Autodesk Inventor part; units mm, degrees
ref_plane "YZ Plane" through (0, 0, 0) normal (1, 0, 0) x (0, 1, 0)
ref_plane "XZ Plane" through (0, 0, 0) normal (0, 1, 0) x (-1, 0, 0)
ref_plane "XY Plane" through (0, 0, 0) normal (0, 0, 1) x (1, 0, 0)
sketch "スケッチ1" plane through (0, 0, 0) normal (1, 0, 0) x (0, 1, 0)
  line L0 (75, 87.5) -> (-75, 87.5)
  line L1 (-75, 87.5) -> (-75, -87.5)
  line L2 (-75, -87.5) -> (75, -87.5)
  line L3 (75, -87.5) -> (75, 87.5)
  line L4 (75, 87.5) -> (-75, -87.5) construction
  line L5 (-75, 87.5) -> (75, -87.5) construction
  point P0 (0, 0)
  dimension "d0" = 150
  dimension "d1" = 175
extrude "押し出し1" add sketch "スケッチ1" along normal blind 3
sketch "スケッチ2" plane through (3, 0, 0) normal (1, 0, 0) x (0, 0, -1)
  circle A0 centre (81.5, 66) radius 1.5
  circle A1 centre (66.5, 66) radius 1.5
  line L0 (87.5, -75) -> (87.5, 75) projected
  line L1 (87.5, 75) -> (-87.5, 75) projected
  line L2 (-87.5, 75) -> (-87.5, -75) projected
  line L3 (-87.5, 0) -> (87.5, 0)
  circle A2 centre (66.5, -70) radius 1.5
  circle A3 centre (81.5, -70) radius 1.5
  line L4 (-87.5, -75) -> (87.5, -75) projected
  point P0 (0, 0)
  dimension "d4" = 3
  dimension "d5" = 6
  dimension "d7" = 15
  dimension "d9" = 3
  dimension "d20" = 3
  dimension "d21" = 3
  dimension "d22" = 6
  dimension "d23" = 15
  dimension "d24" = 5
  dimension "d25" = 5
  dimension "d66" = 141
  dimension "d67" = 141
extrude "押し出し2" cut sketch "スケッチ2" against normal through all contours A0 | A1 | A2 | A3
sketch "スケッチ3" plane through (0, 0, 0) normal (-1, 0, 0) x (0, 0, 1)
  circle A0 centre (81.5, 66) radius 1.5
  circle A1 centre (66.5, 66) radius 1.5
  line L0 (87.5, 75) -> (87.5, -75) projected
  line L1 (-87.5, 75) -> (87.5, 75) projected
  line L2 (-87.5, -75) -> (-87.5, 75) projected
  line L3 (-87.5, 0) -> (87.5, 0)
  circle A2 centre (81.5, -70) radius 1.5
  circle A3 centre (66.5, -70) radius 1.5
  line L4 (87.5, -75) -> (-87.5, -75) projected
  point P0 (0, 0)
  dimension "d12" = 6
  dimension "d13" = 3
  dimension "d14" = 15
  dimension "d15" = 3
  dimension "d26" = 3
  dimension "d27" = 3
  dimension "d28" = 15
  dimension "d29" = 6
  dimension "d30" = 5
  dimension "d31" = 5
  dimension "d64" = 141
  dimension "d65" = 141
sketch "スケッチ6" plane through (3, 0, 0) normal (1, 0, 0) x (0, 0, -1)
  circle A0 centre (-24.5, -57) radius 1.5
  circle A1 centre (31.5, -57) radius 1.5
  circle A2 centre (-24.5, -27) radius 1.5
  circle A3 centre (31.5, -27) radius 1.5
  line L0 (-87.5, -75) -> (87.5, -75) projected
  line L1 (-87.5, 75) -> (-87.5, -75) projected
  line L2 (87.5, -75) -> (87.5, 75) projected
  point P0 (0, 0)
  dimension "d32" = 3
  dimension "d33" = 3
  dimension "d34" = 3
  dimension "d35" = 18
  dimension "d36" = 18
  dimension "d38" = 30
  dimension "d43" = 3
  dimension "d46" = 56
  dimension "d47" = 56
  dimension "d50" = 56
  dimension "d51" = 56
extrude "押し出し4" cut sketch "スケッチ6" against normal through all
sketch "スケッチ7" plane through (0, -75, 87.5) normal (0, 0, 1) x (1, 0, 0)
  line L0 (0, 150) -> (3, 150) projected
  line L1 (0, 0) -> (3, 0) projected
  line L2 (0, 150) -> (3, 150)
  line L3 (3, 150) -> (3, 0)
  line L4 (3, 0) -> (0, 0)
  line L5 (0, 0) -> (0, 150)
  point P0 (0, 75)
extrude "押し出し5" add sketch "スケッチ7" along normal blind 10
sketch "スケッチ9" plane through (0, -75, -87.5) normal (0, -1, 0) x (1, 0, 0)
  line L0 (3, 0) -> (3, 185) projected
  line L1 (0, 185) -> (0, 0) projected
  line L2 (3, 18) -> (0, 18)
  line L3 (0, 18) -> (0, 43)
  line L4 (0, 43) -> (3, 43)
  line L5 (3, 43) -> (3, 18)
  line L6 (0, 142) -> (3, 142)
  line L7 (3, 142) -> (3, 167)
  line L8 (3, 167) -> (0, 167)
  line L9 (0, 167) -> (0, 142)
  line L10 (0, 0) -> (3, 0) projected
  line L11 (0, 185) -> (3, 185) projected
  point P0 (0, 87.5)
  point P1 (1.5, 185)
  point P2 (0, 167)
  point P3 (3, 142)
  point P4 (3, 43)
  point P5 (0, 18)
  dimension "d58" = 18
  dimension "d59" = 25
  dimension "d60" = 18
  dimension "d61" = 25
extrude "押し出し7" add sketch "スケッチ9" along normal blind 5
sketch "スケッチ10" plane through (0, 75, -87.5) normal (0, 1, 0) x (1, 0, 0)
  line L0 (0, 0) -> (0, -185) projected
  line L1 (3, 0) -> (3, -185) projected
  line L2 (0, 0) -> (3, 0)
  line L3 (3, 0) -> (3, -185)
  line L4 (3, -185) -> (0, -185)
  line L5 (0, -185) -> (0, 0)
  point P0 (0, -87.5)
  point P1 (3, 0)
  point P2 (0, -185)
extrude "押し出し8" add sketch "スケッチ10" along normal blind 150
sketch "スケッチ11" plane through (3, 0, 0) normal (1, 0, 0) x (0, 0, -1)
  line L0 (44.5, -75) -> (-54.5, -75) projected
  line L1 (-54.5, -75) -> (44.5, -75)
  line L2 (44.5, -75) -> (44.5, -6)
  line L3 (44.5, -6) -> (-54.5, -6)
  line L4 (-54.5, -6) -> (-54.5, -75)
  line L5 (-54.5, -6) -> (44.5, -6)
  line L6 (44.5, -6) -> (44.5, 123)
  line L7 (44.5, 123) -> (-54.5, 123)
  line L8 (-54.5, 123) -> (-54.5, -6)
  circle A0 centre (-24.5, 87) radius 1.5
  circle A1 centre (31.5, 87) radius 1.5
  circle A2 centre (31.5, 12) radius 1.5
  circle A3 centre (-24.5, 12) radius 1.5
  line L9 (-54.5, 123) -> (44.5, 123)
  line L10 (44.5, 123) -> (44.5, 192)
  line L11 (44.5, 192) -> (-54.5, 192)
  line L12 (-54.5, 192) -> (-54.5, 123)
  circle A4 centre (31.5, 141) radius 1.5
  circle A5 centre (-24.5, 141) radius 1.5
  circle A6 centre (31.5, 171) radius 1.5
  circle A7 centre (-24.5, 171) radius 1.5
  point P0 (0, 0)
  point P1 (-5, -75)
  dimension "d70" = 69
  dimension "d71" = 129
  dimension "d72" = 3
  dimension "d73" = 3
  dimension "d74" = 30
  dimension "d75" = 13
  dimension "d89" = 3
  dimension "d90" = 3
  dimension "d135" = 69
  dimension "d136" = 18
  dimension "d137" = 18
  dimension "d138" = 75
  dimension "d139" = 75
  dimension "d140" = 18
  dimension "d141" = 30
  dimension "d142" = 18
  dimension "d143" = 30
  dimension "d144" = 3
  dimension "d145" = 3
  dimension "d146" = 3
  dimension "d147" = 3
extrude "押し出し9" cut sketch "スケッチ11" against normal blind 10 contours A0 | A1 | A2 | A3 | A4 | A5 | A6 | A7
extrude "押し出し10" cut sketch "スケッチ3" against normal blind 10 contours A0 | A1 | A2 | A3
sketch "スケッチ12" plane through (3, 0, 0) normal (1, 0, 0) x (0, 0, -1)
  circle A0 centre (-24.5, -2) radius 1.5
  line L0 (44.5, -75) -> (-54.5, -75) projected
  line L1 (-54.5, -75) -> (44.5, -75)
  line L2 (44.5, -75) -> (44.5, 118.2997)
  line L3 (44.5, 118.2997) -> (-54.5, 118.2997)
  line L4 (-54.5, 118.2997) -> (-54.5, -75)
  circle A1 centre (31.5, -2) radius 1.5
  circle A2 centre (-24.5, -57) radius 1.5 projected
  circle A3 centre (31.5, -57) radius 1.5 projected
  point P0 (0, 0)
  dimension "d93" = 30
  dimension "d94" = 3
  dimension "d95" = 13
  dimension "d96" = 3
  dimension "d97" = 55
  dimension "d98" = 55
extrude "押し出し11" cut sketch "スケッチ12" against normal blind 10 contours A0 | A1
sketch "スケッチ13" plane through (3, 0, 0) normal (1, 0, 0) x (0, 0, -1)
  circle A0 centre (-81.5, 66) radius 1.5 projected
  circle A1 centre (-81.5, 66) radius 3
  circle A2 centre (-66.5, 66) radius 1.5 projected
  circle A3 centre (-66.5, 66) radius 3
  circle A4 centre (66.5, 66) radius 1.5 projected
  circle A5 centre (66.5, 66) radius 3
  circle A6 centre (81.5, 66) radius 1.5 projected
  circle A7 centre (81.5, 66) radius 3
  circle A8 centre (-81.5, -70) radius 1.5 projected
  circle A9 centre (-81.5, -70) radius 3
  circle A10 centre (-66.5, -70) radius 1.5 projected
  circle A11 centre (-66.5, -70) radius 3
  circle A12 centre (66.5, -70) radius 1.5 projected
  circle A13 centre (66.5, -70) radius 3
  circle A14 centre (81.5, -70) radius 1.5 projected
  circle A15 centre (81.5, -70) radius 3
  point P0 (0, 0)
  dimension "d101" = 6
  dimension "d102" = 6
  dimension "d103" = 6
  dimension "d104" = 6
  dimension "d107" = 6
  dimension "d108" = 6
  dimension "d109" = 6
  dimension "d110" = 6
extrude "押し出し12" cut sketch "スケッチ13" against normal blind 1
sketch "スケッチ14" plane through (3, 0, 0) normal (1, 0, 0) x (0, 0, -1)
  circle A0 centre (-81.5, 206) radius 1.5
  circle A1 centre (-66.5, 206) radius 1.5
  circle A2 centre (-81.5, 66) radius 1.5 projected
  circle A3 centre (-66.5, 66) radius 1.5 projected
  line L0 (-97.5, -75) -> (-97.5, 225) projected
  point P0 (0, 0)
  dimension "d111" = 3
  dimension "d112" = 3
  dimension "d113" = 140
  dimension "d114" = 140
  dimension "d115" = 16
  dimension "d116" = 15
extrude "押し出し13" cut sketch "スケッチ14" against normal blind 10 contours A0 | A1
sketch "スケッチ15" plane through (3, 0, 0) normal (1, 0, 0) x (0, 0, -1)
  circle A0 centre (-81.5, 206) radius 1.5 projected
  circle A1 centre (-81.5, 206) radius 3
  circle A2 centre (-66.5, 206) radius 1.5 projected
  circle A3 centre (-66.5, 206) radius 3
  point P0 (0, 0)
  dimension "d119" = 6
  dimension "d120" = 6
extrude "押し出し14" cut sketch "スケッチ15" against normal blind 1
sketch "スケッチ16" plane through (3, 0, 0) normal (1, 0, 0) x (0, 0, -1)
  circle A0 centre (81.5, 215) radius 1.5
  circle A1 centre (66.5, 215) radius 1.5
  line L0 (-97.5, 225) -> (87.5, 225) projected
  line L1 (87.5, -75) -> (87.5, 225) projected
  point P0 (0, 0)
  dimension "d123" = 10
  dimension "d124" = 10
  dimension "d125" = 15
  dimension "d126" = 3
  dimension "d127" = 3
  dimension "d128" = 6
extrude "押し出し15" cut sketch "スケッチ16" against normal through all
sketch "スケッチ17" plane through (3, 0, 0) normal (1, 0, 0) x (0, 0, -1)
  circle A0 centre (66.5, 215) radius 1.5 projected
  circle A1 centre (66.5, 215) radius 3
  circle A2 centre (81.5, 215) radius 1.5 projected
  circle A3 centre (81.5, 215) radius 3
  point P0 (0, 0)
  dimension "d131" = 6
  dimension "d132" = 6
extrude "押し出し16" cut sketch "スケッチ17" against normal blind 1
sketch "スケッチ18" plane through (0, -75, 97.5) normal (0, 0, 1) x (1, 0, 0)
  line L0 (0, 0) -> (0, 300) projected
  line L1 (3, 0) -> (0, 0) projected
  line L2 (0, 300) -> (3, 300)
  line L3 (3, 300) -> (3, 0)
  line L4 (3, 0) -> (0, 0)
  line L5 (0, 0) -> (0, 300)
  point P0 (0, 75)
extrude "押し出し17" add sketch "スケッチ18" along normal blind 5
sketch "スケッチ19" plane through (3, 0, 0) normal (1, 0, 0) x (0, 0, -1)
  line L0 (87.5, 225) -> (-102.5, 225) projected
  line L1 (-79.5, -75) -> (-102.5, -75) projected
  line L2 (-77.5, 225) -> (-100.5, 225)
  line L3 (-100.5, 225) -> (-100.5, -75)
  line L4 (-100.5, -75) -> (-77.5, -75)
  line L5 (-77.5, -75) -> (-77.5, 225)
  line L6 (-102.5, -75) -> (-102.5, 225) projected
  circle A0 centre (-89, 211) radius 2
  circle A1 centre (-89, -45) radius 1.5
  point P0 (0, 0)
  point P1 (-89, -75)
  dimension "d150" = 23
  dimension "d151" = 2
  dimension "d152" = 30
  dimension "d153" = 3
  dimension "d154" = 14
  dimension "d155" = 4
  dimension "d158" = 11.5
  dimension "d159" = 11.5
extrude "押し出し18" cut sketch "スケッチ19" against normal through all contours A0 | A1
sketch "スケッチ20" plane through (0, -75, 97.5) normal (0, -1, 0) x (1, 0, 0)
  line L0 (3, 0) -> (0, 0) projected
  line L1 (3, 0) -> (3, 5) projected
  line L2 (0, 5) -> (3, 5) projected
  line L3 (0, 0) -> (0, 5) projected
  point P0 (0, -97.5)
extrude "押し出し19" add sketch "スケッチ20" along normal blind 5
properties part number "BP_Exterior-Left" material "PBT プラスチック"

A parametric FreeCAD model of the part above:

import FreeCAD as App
import Part
import Sketcher
from FreeCAD import Vector
Q = App.Units.Quantity


def add_polygon(sketch, points):
    """Adds a closed chain of lines whose ends are joined by coincident constraints."""
    first, n = sketch.GeometryCount, len(points)
    for a, b in zip(points, points[1:] + points[:1]):
        sketch.addGeometry(Part.LineSegment(App.Vector(*a, 0), App.Vector(*b, 0)), False)
    for i in range(n):
        sketch.addConstraint(Sketcher.Constraint("Coincident", first + i, 2, first + (i + 1) % n, 1))

doc = App.newDocument("Part")
body = doc.addObject("PartDesign::Body", "Body")

sketch1 = body.newObject("Sketcher::SketchObject", "Sketch")
sketch1.AttachmentSupport = (doc.getObject("YZ_Plane"), [""])
sketch1.MapMode = "FlatFace"
add_polygon(sketch1, [(75, -88), (75, 88), (-75, 88), (-75, -88)])
sketch1.addConstraint([
    Sketcher.Constraint("Vertical", 0),
    Sketcher.Constraint("Horizontal", 1),
    Sketcher.Constraint("Vertical", 2),
    Sketcher.Constraint("Horizontal", 3),
    Sketcher.Constraint("Symmetric", 0, 2, 2, 2, -1, 1),
    Sketcher.Constraint("DistanceX", 1, 2, 1, 1, Q("150 mm")),
    Sketcher.Constraint("DistanceY", 0, 1, 0, 2, Q("175 mm")),
])
pad1 = body.newObject("PartDesign::Pad", "Pad")
pad1.Profile = sketch1
pad1.Length = 3

sketch2 = body.newObject("Sketcher::SketchObject", "Sketch001")
sketch2.AttachmentSupport = (doc.getObject("YZ_Plane"), [""])
sketch2.MapMode = "FlatFace"
sketch2.AttachmentOffset = App.Placement(Vector(0, 0, 3), App.Rotation())
sketch2.addGeometry([
    Part.Circle(Vector(66, -81.5, 0), Vector(0, 0, 1), 1.5),
    Part.Circle(Vector(66, -66.5, 0), Vector(0, 0, 1), 1.5),
    Part.Circle(Vector(-70, -66.5, 0), Vector(0, 0, 1), 1.5),
    Part.Circle(Vector(-70, -81.5, 0), Vector(0, 0, 1), 1.5),
], False)
sketch2.addConstraint([
    Sketcher.Constraint("Equal", 0, 1),
    Sketcher.Constraint("Equal", 1, 2),
    Sketcher.Constraint("Equal", 2, 3),
    Sketcher.Constraint("Horizontal", 1, 3, 2, 3),
    Sketcher.Constraint("Horizontal", 0, 3, 3, 3),
    Sketcher.Constraint("Vertical", 0, 3, 1, 3),
    Sketcher.Constraint("Vertical", 2, 3, 3, 3),
    Sketcher.Constraint("Diameter", 0, Q("3 mm")),
    Sketcher.Constraint("DistanceY", 0, 3, 1, 3, Q("15 mm")),
    Sketcher.Constraint("DistanceX", -1, 1, 0, 3, Q("66 mm")),
    Sketcher.Constraint("DistanceX", 2, 3, -1, 1, Q("70 mm")),
    Sketcher.Constraint("DistanceY", 0, 3, -1, 1, Q("81.5 mm")),
])
pocket1 = body.newObject("PartDesign::Pocket", "Pocket")
pocket1.Profile = sketch2
pocket1.Type = "ThroughAll"

sketch3 = body.newObject("Sketcher::SketchObject", "Sketch002")
sketch3.AttachmentSupport = (doc.getObject("YZ_Plane"), [""])
sketch3.MapMode = "FlatFace"
sketch3.AttachmentOffset = App.Placement(Vector(0, 0, 3), App.Rotation())
sketch3.addGeometry([
    Part.Circle(Vector(-57, 24.5, 0), Vector(0, 0, 1), 1.5),
    Part.Circle(Vector(-57, -31.5, 0), Vector(0, 0, 1), 1.5),
    Part.Circle(Vector(-27, 24.5, 0), Vector(0, 0, 1), 1.5),
    Part.Circle(Vector(-27, -31.5, 0), Vector(0, 0, 1), 1.5),
], False)
sketch3.addConstraint([
    Sketcher.Constraint("Equal", 0, 1),
    Sketcher.Constraint("Equal", 1, 2),
    Sketcher.Constraint("Equal", 2, 3),
    Sketcher.Constraint("Horizontal", 0, 3, 2, 3),
    Sketcher.Constraint("Horizontal", 1, 3, 3, 3),
    Sketcher.Constraint("Vertical", 0, 3, 1, 3),
    Sketcher.Constraint("Vertical", 2, 3, 3, 3),
    Sketcher.Constraint("Diameter", 0, Q("3 mm")),
    Sketcher.Constraint("DistanceY", 1, 3, 0, 3, Q("56 mm")),
    Sketcher.Constraint("DistanceX", 0, 3, 2, 3, Q("30 mm")),
    Sketcher.Constraint("DistanceX", 0, 3, -1, 1, Q("57 mm")),
    Sketcher.Constraint("DistanceY", -1, 1, 0, 3, Q("24.5 mm")),
])
pocket2 = body.newObject("PartDesign::Pocket", "Pocket001")
pocket2.Profile = sketch3
pocket2.Type = "ThroughAll"

sketch4 = body.newObject("Sketcher::SketchObject", "Sketch003")
sketch4.AttachmentSupport = (doc.getObject("XY_Plane"), [""])
sketch4.MapMode = "FlatFace"
sketch4.AttachmentOffset = App.Placement(Vector(0, 0, 87.5), App.Rotation())
add_polygon(sketch4, [(3, 75), (0, 75), (0, -75), (3, -75)])
sketch4.addConstraint([
    Sketcher.Constraint("Horizontal", 0),
    Sketcher.Constraint("Vertical", 1),
    Sketcher.Constraint("Horizontal", 2),
    Sketcher.Constraint("Vertical", 3),
    Sketcher.Constraint("Symmetric", 0, 2, 1, 2, -1, 1),
    Sketcher.Constraint("DistanceX", 0, 2, 0, 1, Q("3 mm")),
    Sketcher.Constraint("DistanceY", 1, 2, 1, 1, Q("150 mm")),
])
pad2 = body.newObject("PartDesign::Pad", "Pad001")
pad2.Profile = sketch4
pad2.Length = 10

sketch5 = body.newObject("Sketcher::SketchObject", "Sketch004")
sketch5.AttachmentSupport = (doc.getObject("XZ_Plane"), [""])
sketch5.MapMode = "FlatFace"
sketch5.AttachmentOffset = App.Placement(Vector(0, 0, 75), App.Rotation())
add_polygon(sketch5, [(0, -87.5), (3, -87.5), (3, 97.5), (0, 97.5)])
sketch5.addConstraint([
    Sketcher.Constraint("Horizontal", 0),
    Sketcher.Constraint("Vertical", 1),
    Sketcher.Constraint("Horizontal", 2),
    Sketcher.Constraint("Vertical", 3),
    Sketcher.Constraint("PointOnObject", 2, 2, -2),
    Sketcher.Constraint("DistanceX", 0, 1, 0, 2, Q("3 mm")),
    Sketcher.Constraint("DistanceY", 1, 1, 1, 2, Q("185 mm")),
    Sketcher.Constraint("DistanceY", 0, 2, -1, 1, Q("87.5 mm")),
])
pad3 = body.newObject("PartDesign::Pad", "Pad002")
pad3.Profile = sketch5
pad3.Length = 5

sketch6 = body.newObject("Sketcher::SketchObject", "Sketch005")
sketch6.AttachmentSupport = (doc.getObject("XZ_Plane"), [""])
sketch6.MapMode = "FlatFace"
sketch6.AttachmentOffset = App.Placement(Vector(0, 0, -75), App.Rotation())
add_polygon(sketch6, [(3, -87.5), (0, -87.5), (0, 97.5), (3, 97.5)])
sketch6.addConstraint([
    Sketcher.Constraint("Horizontal", 0),
    Sketcher.Constraint("Vertical", 1),
    Sketcher.Constraint("Horizontal", 2),
    Sketcher.Constraint("Vertical", 3),
    Sketcher.Constraint("PointOnObject", 0, 2, -2),
    Sketcher.Constraint("DistanceX", 0, 2, 0, 1, Q("3 mm")),
    Sketcher.Constraint("DistanceY", 1, 1, 1, 2, Q("185 mm")),
    Sketcher.Constraint("DistanceY", 0, 2, -1, 1, Q("87.5 mm")),
])
pad4 = body.newObject("PartDesign::Pad", "Pad003")
pad4.Profile = sketch6
pad4.Length = 150
pad4.Reversed = True

sketch7 = body.newObject("Sketcher::SketchObject", "Sketch006")
sketch7.AttachmentSupport = (doc.getObject("YZ_Plane"), [""])
sketch7.MapMode = "FlatFace"
sketch7.AttachmentOffset = App.Placement(Vector(0, 0, 3), App.Rotation())
sketch7.addGeometry([
    Part.Circle(Vector(87, 24.5, 0), Vector(0, 0, 1), 1.5),
    Part.Circle(Vector(87, -31.5, 0), Vector(0, 0, 1), 1.5),
    Part.Circle(Vector(12, -31.5, 0), Vector(0, 0, 1), 1.5),
    Part.Circle(Vector(12, 24.5, 0), Vector(0, 0, 1), 1.5),
    Part.Circle(Vector(141, -31.5, 0), Vector(0, 0, 1), 1.5),
    Part.Circle(Vector(141, 24.5, 0), Vector(0, 0, 1), 1.5),
    Part.Circle(Vector(171, -31.5, 0), Vector(0, 0, 1), 1.5),
    Part.Circle(Vector(171, 24.5, 0), Vector(0, 0, 1), 1.5),
], False)
sketch7.addConstraint([
    Sketcher.Constraint("Equal", 0, 1),
    Sketcher.Constraint("Equal", 1, 2),
    Sketcher.Constraint("Equal", 2, 3),
    Sketcher.Constraint("Equal", 3, 4),
    Sketcher.Constraint("Equal", 4, 5),
    Sketcher.Constraint("Equal", 5, 6),
    Sketcher.Constraint("Equal", 6, 7),
    Sketcher.Constraint("Horizontal", 1, 3, 2, 3),
    Sketcher.Constraint("Horizontal", 0, 3, 3, 3),
    Sketcher.Constraint("Horizontal", 2, 3, 4, 3),
    Sketcher.Constraint("Horizontal", 3, 3, 5, 3),
    Sketcher.Constraint("Horizontal", 4, 3, 6, 3),
    Sketcher.Constraint("Horizontal", 5, 3, 7, 3),
    Sketcher.Constraint("Vertical", 0, 3, 1, 3),
    Sketcher.Constraint("Vertical", 2, 3, 3, 3),
    Sketcher.Constraint("Vertical", 4, 3, 5, 3),
    Sketcher.Constraint("Vertical", 6, 3, 7, 3),
    Sketcher.Constraint("Diameter", 0, Q("3 mm")),
    Sketcher.Constraint("DistanceX", 2, 3, 1, 3, Q("75 mm")),
    Sketcher.Constraint("DistanceX", 2, 3, 4, 3, Q("129 mm")),
    Sketcher.Constraint("DistanceX", 4, 3, 6, 3, Q("30 mm")),
    Sketcher.Constraint("DistanceX", -1, 1, 0, 3, Q("87 mm")),
    Sketcher.Constraint("DistanceY", 1, 3, 0, 3, Q("56 mm")),
    Sketcher.Constraint("DistanceY", -1, 1, 0, 3, Q("24.5 mm")),
])
pocket3 = body.newObject("PartDesign::Pocket", "Pocket002")
pocket3.Profile = sketch7
pocket3.Length = 10

sketch8 = body.newObject("Sketcher::SketchObject", "Sketch007")
sketch8.AttachmentSupport = (doc.getObject("YZ_Plane"), [""])
sketch8.MapMode = "FlatFace"
sketch8.addGeometry([
    Part.Circle(Vector(66, 81.5, 0), Vector(0, 0, 1), 1.5),
    Part.Circle(Vector(66, 66.5, 0), Vector(0, 0, 1), 1.5),
    Part.Circle(Vector(-70, 81.5, 0), Vector(0, 0, 1), 1.5),
    Part.Circle(Vector(-70, 66.5, 0), Vector(0, 0, 1), 1.5),
], False)
sketch8.addConstraint([
    Sketcher.Constraint("Equal", 0, 1),
    Sketcher.Constraint("Equal", 1, 2),
    Sketcher.Constraint("Equal", 2, 3),
    Sketcher.Constraint("Horizontal", 0, 3, 2, 3),
    Sketcher.Constraint("Horizontal", 1, 3, 3, 3),
    Sketcher.Constraint("Vertical", 0, 3, 1, 3),
    Sketcher.Constraint("Vertical", 2, 3, 3, 3),
    Sketcher.Constraint("Diameter", 0, Q("3 mm")),
    Sketcher.Constraint("DistanceY", 1, 3, 0, 3, Q("15 mm")),
    Sketcher.Constraint("DistanceX", -1, 1, 0, 3, Q("66 mm")),
    Sketcher.Constraint("DistanceX", 2, 3, -1, 1, Q("70 mm")),
    Sketcher.Constraint("DistanceY", -1, 1, 0, 3, Q("81.5 mm")),
])
pocket4 = body.newObject("PartDesign::Pocket", "Pocket003")
pocket4.Profile = sketch8
pocket4.Length = 10
pocket4.Reversed = True

sketch9 = body.newObject("Sketcher::SketchObject", "Sketch008")
sketch9.AttachmentSupport = (doc.getObject("YZ_Plane"), [""])
sketch9.MapMode = "FlatFace"
sketch9.AttachmentOffset = App.Placement(Vector(0, 0, 3), App.Rotation())
sketch9.addGeometry([
    Part.Circle(Vector(-2, 24.5, 0), Vector(0, 0, 1), 1.5),
    Part.Circle(Vector(-2, -31.5, 0), Vector(0, 0, 1), 1.5),
], False)
sketch9.addConstraint([
    Sketcher.Constraint("Equal", 0, 1),
    Sketcher.Constraint("Vertical", 0, 3, 1, 3),
    Sketcher.Constraint("Diameter", 0, Q("3 mm")),
    Sketcher.Constraint("DistanceX", 0, 3, -1, 1, Q("2 mm")),
    Sketcher.Constraint("DistanceY", 1, 3, 0, 3, Q("56 mm")),
    Sketcher.Constraint("DistanceY", -1, 1, 0, 3, Q("24.5 mm")),
])
pocket5 = body.newObject("PartDesign::Pocket", "Pocket004")
pocket5.Profile = sketch9
pocket5.Length = 10

sketch10 = body.newObject("Sketcher::SketchObject", "Sketch009")
sketch10.AttachmentSupport = (doc.getObject("YZ_Plane"), [""])
sketch10.MapMode = "FlatFace"
sketch10.AttachmentOffset = App.Placement(Vector(0, 0, 3), App.Rotation())
sketch10.addGeometry([
    Part.Circle(Vector(66, 81.5, 0), Vector(0, 0, 1), 3),
    Part.Circle(Vector(66, 81.5, 0), Vector(0, 0, 1), 1.5),
    Part.Circle(Vector(66, 66.5, 0), Vector(0, 0, 1), 3),
    Part.Circle(Vector(66, 66.5, 0), Vector(0, 0, 1), 1.5),
    Part.Circle(Vector(66, -66.5, 0), Vector(0, 0, 1), 3),
    Part.Circle(Vector(66, -66.5, 0), Vector(0, 0, 1), 1.5),
    Part.Circle(Vector(66, -81.5, 0), Vector(0, 0, 1), 3),
    Part.Circle(Vector(66, -81.5, 0), Vector(0, 0, 1), 1.5),
    Part.Circle(Vector(-70, 81.5, 0), Vector(0, 0, 1), 3),
    Part.Circle(Vector(-70, 81.5, 0), Vector(0, 0, 1), 1.5),
    Part.Circle(Vector(-70, 66.5, 0), Vector(0, 0, 1), 3),
    Part.Circle(Vector(-70, 66.5, 0), Vector(0, 0, 1), 1.5),
    Part.Circle(Vector(-70, -66.5, 0), Vector(0, 0, 1), 3),
    Part.Circle(Vector(-70, -66.5, 0), Vector(0, 0, 1), 1.5),
    Part.Circle(Vector(-70, -81.5, 0), Vector(0, 0, 1), 3),
    Part.Circle(Vector(-70, -81.5, 0), Vector(0, 0, 1), 1.5),
], False)
sketch10.addConstraint([
    Sketcher.Constraint("Coincident", 1, 3, 0, 3),
    Sketcher.Constraint("Coincident", 3, 3, 2, 3),
    Sketcher.Constraint("Coincident", 5, 3, 4, 3),
    Sketcher.Constraint("Coincident", 7, 3, 6, 3),
    Sketcher.Constraint("Coincident", 9, 3, 8, 3),
    Sketcher.Constraint("Coincident", 11, 3, 10, 3),
    Sketcher.Constraint("Coincident", 13, 3, 12, 3),
    Sketcher.Constraint("Coincident", 15, 3, 14, 3),
    Sketcher.Constraint("Equal", 0, 2),
    Sketcher.Constraint("Equal", 1, 3),
    Sketcher.Constraint("Equal", 2, 4),
    Sketcher.Constraint("Equal", 3, 5),
    Sketcher.Constraint("Equal", 4, 6),
    Sketcher.Constraint("Equal", 5, 7),
    Sketcher.Constraint("Equal", 6, 8),
    Sketcher.Constraint("Equal", 7, 9),
    Sketcher.Constraint("Equal", 8, 10),
    Sketcher.Constraint("Equal", 9, 11),
    Sketcher.Constraint("Equal", 10, 12),
    Sketcher.Constraint("Equal", 11, 13),
    Sketcher.Constraint("Equal", 12, 14),
    Sketcher.Constraint("Equal", 13, 15),
    Sketcher.Constraint("Symmetric", 2, 3, 4, 3, -1),
    Sketcher.Constraint("Symmetric", 0, 3, 6, 3, -1),
    Sketcher.Constraint("Symmetric", 10, 3, 12, 3, -1),
    Sketcher.Constraint("Symmetric", 8, 3, 14, 3, -1),
    Sketcher.Constraint("Horizontal", 1, 3, 8, 3),
    Sketcher.Constraint("Horizontal", 3, 3, 10, 3),
    Sketcher.Constraint("Vertical", 1, 3, 2, 3),
    Sketcher.Constraint("Vertical", 9, 3, 10, 3),
    Sketcher.Constraint("Diameter", 0, Q("6 mm")),
    Sketcher.Constraint("Diameter", 1, Q("3 mm")),
    Sketcher.Constraint("DistanceX", -1, 1, 0, 3, Q("66 mm")),
    Sketcher.Constraint("DistanceX", 8, 3, -1, 1, Q("70 mm")),
    Sketcher.Constraint("DistanceY", 2, 3, 0, 3, Q("15 mm")),
    Sketcher.Constraint("DistanceY", 4, 3, 2, 3, Q("133 mm")),
])
pocket6 = body.newObject("PartDesign::Pocket", "Pocket005")
pocket6.Profile = sketch10
pocket6.Length = 1

sketch11 = body.newObject("Sketcher::SketchObject", "Sketch010")
sketch11.AttachmentSupport = (doc.getObject("YZ_Plane"), [""])
sketch11.MapMode = "FlatFace"
sketch11.AttachmentOffset = App.Placement(Vector(0, 0, 3), App.Rotation())
sketch11.addGeometry([
    Part.Circle(Vector(206, 81.5, 0), Vector(0, 0, 1), 1.5),
    Part.Circle(Vector(206, 66.5, 0), Vector(0, 0, 1), 1.5),
], False)
sketch11.addConstraint([
    Sketcher.Constraint("Equal", 0, 1),
    Sketcher.Constraint("Vertical", 0, 3, 1, 3),
    Sketcher.Constraint("Diameter", 0, Q("3 mm")),
    Sketcher.Constraint("DistanceY", 1, 3, 0, 3, Q("15 mm")),
    Sketcher.Constraint("DistanceX", -1, 1, 0, 3, Q("206 mm")),
    Sketcher.Constraint("DistanceY", -1, 1, 0, 3, Q("81.5 mm")),
])
pocket7 = body.newObject("PartDesign::Pocket", "Pocket006")
pocket7.Profile = sketch11
pocket7.Length = 10

sketch12 = body.newObject("Sketcher::SketchObject", "Sketch011")
sketch12.AttachmentSupport = (doc.getObject("YZ_Plane"), [""])
sketch12.MapMode = "FlatFace"
sketch12.AttachmentOffset = App.Placement(Vector(0, 0, 3), App.Rotation())
sketch12.addGeometry([
    Part.Circle(Vector(206, 81.5, 0), Vector(0, 0, 1), 3),
    Part.Circle(Vector(206, 81.5, 0), Vector(0, 0, 1), 1.5),
    Part.Circle(Vector(206, 66.5, 0), Vector(0, 0, 1), 3),
    Part.Circle(Vector(206, 66.5, 0), Vector(0, 0, 1), 1.5),
], False)
sketch12.addConstraint([
    Sketcher.Constraint("Coincident", 1, 3, 0, 3),
    Sketcher.Constraint("Coincident", 3, 3, 2, 3),
    Sketcher.Constraint("Equal", 0, 2),
    Sketcher.Constraint("Equal", 1, 3),
    Sketcher.Constraint("Vertical", 1, 3, 2, 3),
    Sketcher.Constraint("Diameter", 0, Q("6 mm")),
    Sketcher.Constraint("Diameter", 1, Q("3 mm")),
    Sketcher.Constraint("DistanceX", -1, 1, 0, 3, Q("206 mm")),
    Sketcher.Constraint("DistanceY", 2, 3, 0, 3, Q("15 mm")),
    Sketcher.Constraint("DistanceY", -1, 1, 0, 3, Q("81.5 mm")),
])
pocket8 = body.newObject("PartDesign::Pocket", "Pocket007")
pocket8.Profile = sketch12
pocket8.Length = 1

sketch13 = body.newObject("Sketcher::SketchObject", "Sketch012")
sketch13.AttachmentSupport = (doc.getObject("YZ_Plane"), [""])
sketch13.MapMode = "FlatFace"
sketch13.AttachmentOffset = App.Placement(Vector(0, 0, 3), App.Rotation())
sketch13.addGeometry([
    Part.Circle(Vector(215, -81.5, 0), Vector(0, 0, 1), 1.5),
    Part.Circle(Vector(215, -66.5, 0), Vector(0, 0, 1), 1.5),
], False)
sketch13.addConstraint([
    Sketcher.Constraint("Equal", 0, 1),
    Sketcher.Constraint("Vertical", 0, 3, 1, 3),
    Sketcher.Constraint("Diameter", 0, Q("3 mm")),
    Sketcher.Constraint("DistanceY", 0, 3, 1, 3, Q("15 mm")),
    Sketcher.Constraint("DistanceX", -1, 1, 0, 3, Q("215 mm")),
    Sketcher.Constraint("DistanceY", 0, 3, -1, 1, Q("81.5 mm")),
])
pocket9 = body.newObject("PartDesign::Pocket", "Pocket008")
pocket9.Profile = sketch13
pocket9.Type = "ThroughAll"

sketch14 = body.newObject("Sketcher::SketchObject", "Sketch013")
sketch14.AttachmentSupport = (doc.getObject("YZ_Plane"), [""])
sketch14.MapMode = "FlatFace"
sketch14.AttachmentOffset = App.Placement(Vector(0, 0, 3), App.Rotation())
sketch14.addGeometry([
    Part.Circle(Vector(215, -66.5, 0), Vector(0, 0, 1), 3),
    Part.Circle(Vector(215, -66.5, 0), Vector(0, 0, 1), 1.5),
    Part.Circle(Vector(215, -81.5, 0), Vector(0, 0, 1), 3),
    Part.Circle(Vector(215, -81.5, 0), Vector(0, 0, 1), 1.5),
], False)
sketch14.addConstraint([
    Sketcher.Constraint("Coincident", 1, 3, 0, 3),
    Sketcher.Constraint("Coincident", 3, 3, 2, 3),
    Sketcher.Constraint("Equal", 0, 2),
    Sketcher.Constraint("Equal", 1, 3),
    Sketcher.Constraint("Vertical", 1, 3, 2, 3),
    Sketcher.Constraint("Diameter", 0, Q("6 mm")),
    Sketcher.Constraint("Diameter", 1, Q("3 mm")),
    Sketcher.Constraint("DistanceX", -1, 1, 0, 3, Q("215 mm")),
    Sketcher.Constraint("DistanceY", 2, 3, 0, 3, Q("15 mm")),
    Sketcher.Constraint("DistanceY", 0, 3, -1, 1, Q("66.5 mm")),
])
pocket10 = body.newObject("PartDesign::Pocket", "Pocket009")
pocket10.Profile = sketch14
pocket10.Length = 1

sketch15 = body.newObject("Sketcher::SketchObject", "Sketch014")
sketch15.AttachmentSupport = (doc.getObject("XY_Plane"), [""])
sketch15.MapMode = "FlatFace"
sketch15.AttachmentOffset = App.Placement(Vector(0, 0, 97.5), App.Rotation())
add_polygon(sketch15, [(0, 225), (0, -75), (3, -75), (3, 225)])
sketch15.addConstraint([
    Sketcher.Constraint("Vertical", 0),
    Sketcher.Constraint("Horizontal", 1),
    Sketcher.Constraint("Vertical", 2),
    Sketcher.Constraint("Horizontal", 3),
    Sketcher.Constraint("PointOnObject", 0, 2, -2),
    Sketcher.Constraint("DistanceX", 1, 1, 1, 2, Q("3 mm")),
    Sketcher.Constraint("DistanceY", 0, 2, 0, 1, Q("300 mm")),
    Sketcher.Constraint("DistanceY", 0, 2, -1, 1, Q("75 mm")),
])
pad5 = body.newObject("PartDesign::Pad", "Pad004")
pad5.Profile = sketch15
pad5.Length = 5

sketch16 = body.newObject("Sketcher::SketchObject", "Sketch015")
sketch16.AttachmentSupport = (doc.getObject("YZ_Plane"), [""])
sketch16.MapMode = "FlatFace"
sketch16.AttachmentOffset = App.Placement(Vector(0, 0, 3), App.Rotation())
sketch16.addGeometry([
    Part.Circle(Vector(211, 89, 0), Vector(0, 0, 1), 2),
    Part.Circle(Vector(-45, 89, 0), Vector(0, 0, 1), 1.5),
], False)
sketch16.addConstraint([
    Sketcher.Constraint("Horizontal", 0, 3, 1, 3),
    Sketcher.Constraint("Diameter", 0, Q("4 mm")),
    Sketcher.Constraint("Diameter", 1, Q("3 mm")),
    Sketcher.Constraint("DistanceX", -1, 1, 0, 3, Q("211 mm")),
    Sketcher.Constraint("DistanceY", -1, 1, 0, 3, Q("89 mm")),
    Sketcher.Constraint("DistanceX", 1, 3, -1, 1, Q("45 mm")),
])
pocket11 = body.newObject("PartDesign::Pocket", "Pocket010")
pocket11.Profile = sketch16
pocket11.Type = "ThroughAll"

sketch17 = body.newObject("Sketcher::SketchObject", "Sketch016")
sketch17.AttachmentSupport = (doc.getObject("XZ_Plane"), [""])
sketch17.MapMode = "FlatFace"
sketch17.AttachmentOffset = App.Placement(Vector(0, 0, 75), App.Rotation())
add_polygon(sketch17, [(0, 97.5), (3, 97.5), (3, 102.5), (0, 102.5)])
sketch17.addConstraint([
    Sketcher.Constraint("Horizontal", 0),
    Sketcher.Constraint("Vertical", 1),
    Sketcher.Constraint("Horizontal", 2),
    Sketcher.Constraint("Vertical", 3),
    Sketcher.Constraint("PointOnObject", 2, 2, -2),
    Sketcher.Constraint("DistanceX", 0, 1, 0, 2, Q("3 mm")),
    Sketcher.Constraint("DistanceY", 1, 1, 1, 2, Q("5 mm")),
    Sketcher.Constraint("DistanceY", -1, 1, 0, 2, Q("97.5 mm")),
])
pad6 = body.newObject("PartDesign::Pad", "Pad005")
pad6.Profile = sketch17
pad6.Length = 5

doc.recompute()
